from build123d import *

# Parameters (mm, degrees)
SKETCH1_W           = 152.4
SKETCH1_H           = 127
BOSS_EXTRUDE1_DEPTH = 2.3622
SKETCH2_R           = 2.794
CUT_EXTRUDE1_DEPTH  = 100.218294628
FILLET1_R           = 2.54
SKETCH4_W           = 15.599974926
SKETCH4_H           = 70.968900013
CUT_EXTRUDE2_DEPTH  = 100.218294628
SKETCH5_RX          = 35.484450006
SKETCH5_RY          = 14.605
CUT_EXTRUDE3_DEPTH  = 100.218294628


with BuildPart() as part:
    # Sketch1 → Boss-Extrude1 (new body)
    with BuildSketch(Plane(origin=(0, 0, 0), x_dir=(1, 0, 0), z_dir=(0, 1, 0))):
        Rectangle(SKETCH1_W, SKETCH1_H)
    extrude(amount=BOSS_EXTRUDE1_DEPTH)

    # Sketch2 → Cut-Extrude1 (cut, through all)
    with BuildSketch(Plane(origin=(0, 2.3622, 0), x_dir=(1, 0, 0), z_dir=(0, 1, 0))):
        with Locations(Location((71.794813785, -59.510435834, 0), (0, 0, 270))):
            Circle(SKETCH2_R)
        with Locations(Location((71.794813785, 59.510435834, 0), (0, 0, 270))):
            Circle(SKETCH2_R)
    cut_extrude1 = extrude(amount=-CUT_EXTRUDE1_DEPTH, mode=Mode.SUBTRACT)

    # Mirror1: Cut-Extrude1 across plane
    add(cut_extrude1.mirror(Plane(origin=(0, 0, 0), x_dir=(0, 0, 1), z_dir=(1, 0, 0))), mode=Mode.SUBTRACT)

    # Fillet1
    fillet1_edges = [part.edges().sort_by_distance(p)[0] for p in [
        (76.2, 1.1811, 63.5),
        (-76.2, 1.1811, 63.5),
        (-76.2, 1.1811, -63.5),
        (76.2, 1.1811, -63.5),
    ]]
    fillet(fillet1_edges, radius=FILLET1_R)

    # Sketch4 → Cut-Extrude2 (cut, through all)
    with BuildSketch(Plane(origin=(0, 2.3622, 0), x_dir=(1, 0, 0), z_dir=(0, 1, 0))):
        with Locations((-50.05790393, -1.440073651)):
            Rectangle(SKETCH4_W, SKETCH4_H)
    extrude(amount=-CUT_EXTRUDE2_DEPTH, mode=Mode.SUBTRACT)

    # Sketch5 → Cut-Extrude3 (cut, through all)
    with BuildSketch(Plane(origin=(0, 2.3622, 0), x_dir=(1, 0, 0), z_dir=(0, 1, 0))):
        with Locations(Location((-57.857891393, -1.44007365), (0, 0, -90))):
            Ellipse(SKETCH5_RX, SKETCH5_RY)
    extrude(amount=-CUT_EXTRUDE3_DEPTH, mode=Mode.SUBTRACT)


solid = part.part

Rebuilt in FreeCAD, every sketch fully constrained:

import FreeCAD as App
import Part
import Sketcher

V = App.Vector
Q = App.Units.Quantity


def edges_at(feature, points):
    """Names of the edges that pass closest to the given points."""
    edges = feature.Shape.Edges
    near = lambda p: min(range(len(edges)), key=lambda i: edges[i].distToShape(Part.Vertex(*p))[0])
    return sorted({f"Edge{near(p) + 1}" for p in points})

doc = App.newDocument("Part")
body = doc.addObject("PartDesign::Body", "Body")

sketch1 = body.newObject("Sketcher::SketchObject", "Sketch")
sketch1.AttachmentSupport = (doc.getObject("XZ_Plane"), [""])
sketch1.MapMode = "FlatFace"
sketch1.addGeometry([
    Part.LineSegment(V(-76, -64, 0), V(-76, 64, 0)),
    Part.LineSegment(V(-76, 64, 0), V(76, 64, 0)),
    Part.LineSegment(V(76, 64, 0), V(76, -64, 0)),
    Part.LineSegment(V(76, -64, 0), V(-76, -64, 0)),
], False)
sketch1.addConstraint([
    Sketcher.Constraint("Coincident", 0, 2, 1, 1),
    Sketcher.Constraint("Coincident", 1, 2, 2, 1),
    Sketcher.Constraint("Coincident", 2, 2, 3, 1),
    Sketcher.Constraint("Coincident", 3, 2, 0, 1),
    Sketcher.Constraint("Vertical", 0),
    Sketcher.Constraint("Horizontal", 1),
    Sketcher.Constraint("Vertical", 2),
    Sketcher.Constraint("Horizontal", 3),
    Sketcher.Constraint("Symmetric", 0, 2, 2, 2, -1, 1),
    Sketcher.Constraint("DistanceX", 1, 1, 1, 2, Q("6 in")),
    Sketcher.Constraint("DistanceY", 0, 1, 0, 2, Q("5 in")),
])
pad1 = body.newObject("PartDesign::Pad", "Pad")
pad1.Profile = sketch1
pad1.Length = Q("0.093 in")
pad1.Reversed = True

sketch2 = body.newObject("Sketcher::SketchObject", "Sketch001")
sketch2.AttachmentSupport = (doc.getObject("XZ_Plane"), [""])
sketch2.MapMode = "FlatFace"
sketch2.AttachmentOffset = App.Placement(V(0, 0, -0.093 * 25.4), App.Rotation())
sketch2.addGeometry([
    Part.Circle(V(71.8, 59.5, 0), V(0, 0, 1), 2.8),
    Part.Circle(V(71.8, -59.5, 0), V(0, 0, 1), 2.8),
], False)
sketch2.addConstraint([
    Sketcher.Constraint("Equal", 0, 1),
    Sketcher.Constraint("Symmetric", 0, 3, 1, 3, -1),
    Sketcher.Constraint("Diameter", 0, Q("0.22 in")),
    Sketcher.Constraint("DistanceY", 1, 3, 0, 3, 119.020872),
    Sketcher.Constraint("DistanceX", -1, 1, 0, 3, 71.794814),
])
pocket1 = body.newObject("PartDesign::Pocket", "Pocket")
pocket1.Profile = sketch2
pocket1.Type = "ThroughAll"
pocket1.Reversed = True
doc.recompute()

mirrored = body.newObject("PartDesign::Mirrored", "Mirrored")
mirrored.Originals = [pocket1]
mirrored.MirrorPlane = (doc.getObject("YZ_Plane"), [""])
body.Tip = mirrored
doc.recompute()

fillet = body.newObject("PartDesign::Fillet", "Fillet")
fillet.Base = (mirrored, edges_at(mirrored, [
    (76.2, 1.181, 63.5),
    (-76.2, 1.181, 63.5),
    (-76.2, 1.181, -63.5),
    (76.2, 1.181, -63.5),
]))
fillet.Radius = Q("0.1 in")

sketch3 = body.newObject("Sketcher::SketchObject", "Sketch002")
sketch3.AttachmentSupport = (doc.getObject("XZ_Plane"), [""])
sketch3.MapMode = "FlatFace"
sketch3.AttachmentOffset = App.Placement(V(0, 0, -0.093 * 25.4), App.Rotation())
sketch3.addGeometry([
    Part.LineSegment(V(-58, -34, 0), V(-58, 37, 0)),
    Part.LineSegment(V(-58, 37, 0), V(-42, 37, 0)),
    Part.LineSegment(V(-42, 37, 0), V(-42, -34, 0)),
    Part.LineSegment(V(-42, -34, 0), V(-58, -34, 0)),
], False)
sketch3.addConstraint([
    Sketcher.Constraint("Coincident", 0, 2, 1, 1),
    Sketcher.Constraint("Coincident", 1, 2, 2, 1),
    Sketcher.Constraint("Coincident", 2, 2, 3, 1),
    Sketcher.Constraint("Coincident", 3, 2, 0, 1),
    Sketcher.Constraint("Vertical", 0),
    Sketcher.Constraint("Horizontal", 1),
    Sketcher.Constraint("Vertical", 2),
    Sketcher.Constraint("Horizontal", 3),
    Sketcher.Constraint("DistanceY", 0, 1, 0, 2, 70.9689),
    Sketcher.Constraint("DistanceX", 1, 1, 1, 2, 15.599975),
    Sketcher.Constraint("DistanceX", 0, 2, -1, 1, 57.857891),
    Sketcher.Constraint("DistanceY", -1, 1, 0, 2, 36.924524),
])
pocket2 = body.newObject("PartDesign::Pocket", "Pocket001")
pocket2.Profile = sketch3
pocket2.Type = "ThroughAll"
pocket2.Reversed = True

sketch4 = body.newObject("Sketcher::SketchObject", "Sketch003")
sketch4.AttachmentSupport = (doc.getObject("XZ_Plane"), [""])
sketch4.MapMode = "FlatFace"
sketch4.AttachmentOffset = App.Placement(V(0, 0, -0.093 * 25.4), App.Rotation())
sketch4.addGeometry(Part.Ellipse(V(-57.857891, 36.924524, 0), V(-72.462891, 1.440074, 0), V(-57.857891, 1.440074, 0)), False)
sketch4.addConstraint(Sketcher.Constraint("Block", 0))
pocket3 = body.newObject("PartDesign::Pocket", "Pocket002")
pocket3.Profile = sketch4
pocket3.Type = "ThroughAll"
pocket3.Reversed = True

doc.recompute()
